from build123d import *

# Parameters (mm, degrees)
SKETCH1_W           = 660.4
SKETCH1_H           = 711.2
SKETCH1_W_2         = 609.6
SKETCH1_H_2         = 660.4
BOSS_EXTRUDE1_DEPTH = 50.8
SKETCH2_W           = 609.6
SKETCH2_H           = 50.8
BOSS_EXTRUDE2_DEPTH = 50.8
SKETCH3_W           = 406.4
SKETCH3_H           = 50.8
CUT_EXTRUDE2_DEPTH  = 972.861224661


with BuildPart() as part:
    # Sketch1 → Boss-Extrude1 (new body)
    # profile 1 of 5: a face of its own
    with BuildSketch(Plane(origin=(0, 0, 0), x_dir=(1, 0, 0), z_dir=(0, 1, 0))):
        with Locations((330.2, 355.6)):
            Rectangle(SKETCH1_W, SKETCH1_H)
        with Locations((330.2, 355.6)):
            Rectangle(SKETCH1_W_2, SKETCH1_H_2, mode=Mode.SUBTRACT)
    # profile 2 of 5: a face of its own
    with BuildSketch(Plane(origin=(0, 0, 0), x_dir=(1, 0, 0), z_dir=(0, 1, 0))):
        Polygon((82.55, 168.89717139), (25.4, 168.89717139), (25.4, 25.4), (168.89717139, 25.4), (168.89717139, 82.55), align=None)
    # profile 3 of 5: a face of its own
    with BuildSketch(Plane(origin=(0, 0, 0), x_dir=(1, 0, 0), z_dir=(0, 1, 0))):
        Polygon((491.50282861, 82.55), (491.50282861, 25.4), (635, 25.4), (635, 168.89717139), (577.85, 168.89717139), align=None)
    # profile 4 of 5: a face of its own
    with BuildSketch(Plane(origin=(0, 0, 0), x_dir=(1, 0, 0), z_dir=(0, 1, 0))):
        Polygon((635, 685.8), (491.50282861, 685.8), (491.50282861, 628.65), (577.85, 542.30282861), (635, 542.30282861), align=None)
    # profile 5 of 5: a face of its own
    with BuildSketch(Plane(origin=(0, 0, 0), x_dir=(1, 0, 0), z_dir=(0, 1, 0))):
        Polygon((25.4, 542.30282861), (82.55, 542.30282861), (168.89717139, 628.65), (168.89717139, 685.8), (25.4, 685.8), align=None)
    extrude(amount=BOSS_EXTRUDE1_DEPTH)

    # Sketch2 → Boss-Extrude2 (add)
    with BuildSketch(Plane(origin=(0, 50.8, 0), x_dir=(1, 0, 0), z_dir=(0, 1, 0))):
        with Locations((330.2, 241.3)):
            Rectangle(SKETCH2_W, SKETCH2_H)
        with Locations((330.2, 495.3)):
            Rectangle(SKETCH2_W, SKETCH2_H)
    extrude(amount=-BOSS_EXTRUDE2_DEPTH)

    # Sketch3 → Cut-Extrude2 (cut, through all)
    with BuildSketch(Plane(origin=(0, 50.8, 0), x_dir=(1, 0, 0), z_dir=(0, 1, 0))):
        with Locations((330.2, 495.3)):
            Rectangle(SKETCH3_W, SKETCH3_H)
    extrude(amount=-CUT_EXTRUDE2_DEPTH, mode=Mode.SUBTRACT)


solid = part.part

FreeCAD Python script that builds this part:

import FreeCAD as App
import Part
import Sketcher
from FreeCAD import Vector
Q = App.Units.Quantity

doc = App.newDocument("Part")
body = doc.addObject("PartDesign::Body", "Body")

sketch1 = body.newObject("Sketcher::SketchObject", "Sketch")
sketch1.AttachmentSupport = (doc.getObject("XZ_Plane"), [""])
sketch1.MapMode = "FlatFace"
sketch1.addGeometry(Part.LineSegment(Vector(0, -711, 0), Vector(0, 0, 0)), False)
sketch1.addGeometry(Part.LineSegment(Vector(0, 0, 0), Vector(660, 0, 0)), False)
sketch1.addGeometry(Part.LineSegment(Vector(660, 0, 0), Vector(660, -711, 0)), False)
sketch1.addGeometry(Part.LineSegment(Vector(660, -711, 0), Vector(0, -711, 0)), False)
sketch1.addGeometry(Part.LineSegment(Vector(492, -25, 0), Vector(169, -25, 0)), False)
sketch1.addGeometry(Part.LineSegment(Vector(169, -25, 0), Vector(169, -83, 0)), False)
sketch1.addGeometry(Part.LineSegment(Vector(169, -83, 0), Vector(83, -169, 0)), False)
sketch1.addGeometry(Part.LineSegment(Vector(83, -169, 0), Vector(25, -169, 0)), False)
sketch1.addGeometry(Part.LineSegment(Vector(25, -169, 0), Vector(25, -542, 0)), False)
sketch1.addGeometry(Part.LineSegment(Vector(25, -542, 0), Vector(83, -542, 0)), False)
sketch1.addGeometry(Part.LineSegment(Vector(83, -542, 0), Vector(169, -629, 0)), False)
sketch1.addGeometry(Part.LineSegment(Vector(169, -629, 0), Vector(169, -686, 0)), False)
sketch1.addGeometry(Part.LineSegment(Vector(169, -686, 0), Vector(492, -686, 0)), False)
sketch1.addGeometry(Part.LineSegment(Vector(492, -686, 0), Vector(492, -629, 0)), False)
sketch1.addGeometry(Part.LineSegment(Vector(492, -629, 0), Vector(578, -542, 0)), False)
sketch1.addGeometry(Part.LineSegment(Vector(578, -542, 0), Vector(635, -542, 0)), False)
sketch1.addGeometry(Part.LineSegment(Vector(635, -542, 0), Vector(635, -169, 0)), False)
sketch1.addGeometry(Part.LineSegment(Vector(635, -169, 0), Vector(578, -169, 0)), False)
sketch1.addGeometry(Part.LineSegment(Vector(578, -169, 0), Vector(492, -83, 0)), False)
sketch1.addGeometry(Part.LineSegment(Vector(492, -83, 0), Vector(492, -25, 0)), False)
sketch1.addConstraint(Sketcher.Constraint("Coincident", 0, 2, 1, 1))
sketch1.addConstraint(Sketcher.Constraint("Coincident", 1, 2, 2, 1))
sketch1.addConstraint(Sketcher.Constraint("Coincident", 2, 2, 3, 1))
sketch1.addConstraint(Sketcher.Constraint("Coincident", 3, 2, 0, 1))
sketch1.addConstraint(Sketcher.Constraint("Coincident", 4, 2, 5, 1))
sketch1.addConstraint(Sketcher.Constraint("Coincident", 5, 2, 6, 1))
sketch1.addConstraint(Sketcher.Constraint("Coincident", 6, 2, 7, 1))
sketch1.addConstraint(Sketcher.Constraint("Coincident", 7, 2, 8, 1))
sketch1.addConstraint(Sketcher.Constraint("Coincident", 8, 2, 9, 1))
sketch1.addConstraint(Sketcher.Constraint("Coincident", 9, 2, 10, 1))
sketch1.addConstraint(Sketcher.Constraint("Coincident", 10, 2, 11, 1))
sketch1.addConstraint(Sketcher.Constraint("Coincident", 11, 2, 12, 1))
sketch1.addConstraint(Sketcher.Constraint("Coincident", 12, 2, 13, 1))
sketch1.addConstraint(Sketcher.Constraint("Coincident", 13, 2, 14, 1))
sketch1.addConstraint(Sketcher.Constraint("Coincident", 14, 2, 15, 1))
sketch1.addConstraint(Sketcher.Constraint("Coincident", 15, 2, 16, 1))
sketch1.addConstraint(Sketcher.Constraint("Coincident", 16, 2, 17, 1))
sketch1.addConstraint(Sketcher.Constraint("Coincident", 17, 2, 18, 1))
sketch1.addConstraint(Sketcher.Constraint("Coincident", 18, 2, 19, 1))
sketch1.addConstraint(Sketcher.Constraint("Coincident", 19, 2, 4, 1))
sketch1.addConstraint(Sketcher.Constraint("Vertical", 0))
sketch1.addConstraint(Sketcher.Constraint("Horizontal", 1))
sketch1.addConstraint(Sketcher.Constraint("Vertical", 2))
sketch1.addConstraint(Sketcher.Constraint("Horizontal", 3))
sketch1.addConstraint(Sketcher.Constraint("Horizontal", 4))
sketch1.addConstraint(Sketcher.Constraint("Vertical", 5))
sketch1.addConstraint(Sketcher.Constraint("Horizontal", 7))
sketch1.addConstraint(Sketcher.Constraint("Vertical", 8))
sketch1.addConstraint(Sketcher.Constraint("Horizontal", 9))
sketch1.addConstraint(Sketcher.Constraint("Vertical", 11))
sketch1.addConstraint(Sketcher.Constraint("Horizontal", 12))
sketch1.addConstraint(Sketcher.Constraint("Vertical", 13))
sketch1.addConstraint(Sketcher.Constraint("Horizontal", 15))
sketch1.addConstraint(Sketcher.Constraint("Vertical", 16))
sketch1.addConstraint(Sketcher.Constraint("Horizontal", 17))
sketch1.addConstraint(Sketcher.Constraint("Vertical", 19))
sketch1.addConstraint(Sketcher.Constraint("Coincident", 0, 2, -1, 1))
sketch1.addConstraint(Sketcher.Constraint("Perpendicular", 6, 10))
sketch1.addConstraint(Sketcher.Constraint("Perpendicular", 10, 14))
sketch1.addConstraint(Sketcher.Constraint("Perpendicular", 14, 18))
sketch1.addConstraint(Sketcher.Constraint("Horizontal", 10, 2, 13, 2))
sketch1.addConstraint(Sketcher.Constraint("Horizontal", 9, 2, 14, 2))
sketch1.addConstraint(Sketcher.Constraint("Horizontal", 7, 2, 16, 2))
sketch1.addConstraint(Sketcher.Constraint("Horizontal", 5, 2, 18, 2))
sketch1.addConstraint(Sketcher.Constraint("Vertical", 6, 2, 9, 2))
sketch1.addConstraint(Sketcher.Constraint("Vertical", 5, 2, 10, 2))
sketch1.addConstraint(Sketcher.Constraint("Vertical", 14, 2, 17, 2))
sketch1.addConstraint(Sketcher.Constraint("Vertical", 13, 2, 18, 2))
sketch1.addConstraint(Sketcher.Constraint("Equal", 9, 15))
sketch1.addConstraint(Sketcher.Constraint("Equal", 17, 5))
sketch1.addConstraint(Sketcher.Constraint("Equal", 5, 11))
sketch1.addConstraint(Sketcher.Constraint("DistanceX", 1, 1, 1, 2, Q("26 in")))
sketch1.addConstraint(Sketcher.Constraint("DistanceY", 0, 1, 0, 2, Q("28 in")))
sketch1.addConstraint(Sketcher.Constraint("DistanceY", 4, 2, -1, 1, Q("1 in")))
sketch1.addConstraint(Sketcher.Constraint("DistanceX", -1, 1, 7, 2, Q("1 in")))
sketch1.addConstraint(Sketcher.Constraint("DistanceY", 11, 2, -1, 1, Q("27 in")))
sketch1.addConstraint(Sketcher.Constraint("DistanceX", -1, 1, 15, 2, Q("25 in")))
sketch1.addConstraint(Sketcher.Constraint("DistanceX", 7, 2, 7, 1, Q("2.25 in")))
sketch1.addConstraint(Sketcher.Constraint("Distance", 6, Q("122.113341 mm")))
pad1 = body.newObject("PartDesign::Pad", "Pad")
pad1.Profile = sketch1
pad1.Length = Q("2 in")
pad1.Reversed = True

sketch2 = body.newObject("Sketcher::SketchObject", "Sketch001")
sketch2.AttachmentSupport = (doc.getObject("XZ_Plane"), [""])
sketch2.MapMode = "FlatFace"
sketch2.AttachmentOffset = App.Placement(Vector(0, 0, -2 * 25.4), App.Rotation())
sketch2.addGeometry(Part.LineSegment(Vector(25, -267, 0), Vector(25, -216, 0)), False)
sketch2.addGeometry(Part.LineSegment(Vector(25, -216, 0), Vector(635, -216, 0)), False)
sketch2.addGeometry(Part.LineSegment(Vector(635, -216, 0), Vector(635, -267, 0)), False)
sketch2.addGeometry(Part.LineSegment(Vector(635, -267, 0), Vector(25, -267, 0)), False)
sketch2.addGeometry(Part.LineSegment(Vector(25, -521, 0), Vector(25, -470, 0)), False)
sketch2.addGeometry(Part.LineSegment(Vector(25, -470, 0), Vector(635, -470, 0)), False)
sketch2.addGeometry(Part.LineSegment(Vector(635, -470, 0), Vector(635, -521, 0)), False)
sketch2.addGeometry(Part.LineSegment(Vector(635, -521, 0), Vector(25, -521, 0)), False)
sketch2.addConstraint(Sketcher.Constraint("Coincident", 0, 2, 1, 1))
sketch2.addConstraint(Sketcher.Constraint("Coincident", 1, 2, 2, 1))
sketch2.addConstraint(Sketcher.Constraint("Coincident", 2, 2, 3, 1))
sketch2.addConstraint(Sketcher.Constraint("Coincident", 3, 2, 0, 1))
sketch2.addConstraint(Sketcher.Constraint("Coincident", 4, 2, 5, 1))
sketch2.addConstraint(Sketcher.Constraint("Coincident", 5, 2, 6, 1))
sketch2.addConstraint(Sketcher.Constraint("Coincident", 6, 2, 7, 1))
sketch2.addConstraint(Sketcher.Constraint("Coincident", 7, 2, 4, 1))
sketch2.addConstraint(Sketcher.Constraint("Vertical", 0))
sketch2.addConstraint(Sketcher.Constraint("Horizontal", 1))
sketch2.addConstraint(Sketcher.Constraint("Vertical", 2))
sketch2.addConstraint(Sketcher.Constraint("Horizontal", 3))
sketch2.addConstraint(Sketcher.Constraint("Vertical", 4))
sketch2.addConstraint(Sketcher.Constraint("Horizontal", 5))
sketch2.addConstraint(Sketcher.Constraint("Vertical", 6))
sketch2.addConstraint(Sketcher.Constraint("Horizontal", 7))
sketch2.addConstraint(Sketcher.Constraint("Vertical", 3, 2, 4, 2))
sketch2.addConstraint(Sketcher.Constraint("Vertical", 2, 2, 5, 2))
sketch2.addConstraint(Sketcher.Constraint("Equal", 2, 4))
sketch2.addConstraint(Sketcher.Constraint("DistanceX", 1, 1, 1, 2, Q("24 in")))
sketch2.addConstraint(Sketcher.Constraint("DistanceY", 0, 1, 0, 2, Q("2 in")))
sketch2.addConstraint(Sketcher.Constraint("DistanceX", -1, 1, 0, 2, Q("1 in")))
sketch2.addConstraint(Sketcher.Constraint("DistanceY", 4, 2, 3, 2, Q("8 in")))
sketch2.addConstraint(Sketcher.Constraint("DistanceY", 0, 2, -1, 1, Q("8.5 in")))
pad2 = body.newObject("PartDesign::Pad", "Pad001")
pad2.Profile = sketch2
pad2.Length = Q("2 in")

sketch3 = body.newObject("Sketcher::SketchObject", "Sketch002")
sketch3.AttachmentSupport = (doc.getObject("XZ_Plane"), [""])
sketch3.MapMode = "FlatFace"
sketch3.AttachmentOffset = App.Placement(Vector(0, 0, -2 * 25.4), App.Rotation())
sketch3.addGeometry(Part.LineSegment(Vector(127, -521, 0), Vector(127, -470, 0)), False)
sketch3.addGeometry(Part.LineSegment(Vector(127, -470, 0), Vector(533, -470, 0)), False)
sketch3.addGeometry(Part.LineSegment(Vector(533, -470, 0), Vector(533, -521, 0)), False)
sketch3.addGeometry(Part.LineSegment(Vector(533, -521, 0), Vector(127, -521, 0)), False)
sketch3.addConstraint(Sketcher.Constraint("Coincident", 0, 2, 1, 1))
sketch3.addConstraint(Sketcher.Constraint("Coincident", 1, 2, 2, 1))
sketch3.addConstraint(Sketcher.Constraint("Coincident", 2, 2, 3, 1))
sketch3.addConstraint(Sketcher.Constraint("Coincident", 3, 2, 0, 1))
sketch3.addConstraint(Sketcher.Constraint("Vertical", 0))
sketch3.addConstraint(Sketcher.Constraint("Horizontal", 1))
sketch3.addConstraint(Sketcher.Constraint("Vertical", 2))
sketch3.addConstraint(Sketcher.Constraint("Horizontal", 3))
sketch3.addConstraint(Sketcher.Constraint("DistanceX", 1, 1, 1, 2, Q("16 in")))
sketch3.addConstraint(Sketcher.Constraint("DistanceY", 0, 1, 0, 2, Q("2 in")))
sketch3.addConstraint(Sketcher.Constraint("DistanceX", -1, 1, 0, 2, Q("5 in")))
sketch3.addConstraint(Sketcher.Constraint("DistanceY", 0, 2, -1, 1, Q("18.5 in")))
pocket1 = body.newObject("PartDesign::Pocket", "Pocket")
pocket1.Profile = sketch3
pocket1.Type = "ThroughAll"
pocket1.Reversed = True

doc.recompute()
